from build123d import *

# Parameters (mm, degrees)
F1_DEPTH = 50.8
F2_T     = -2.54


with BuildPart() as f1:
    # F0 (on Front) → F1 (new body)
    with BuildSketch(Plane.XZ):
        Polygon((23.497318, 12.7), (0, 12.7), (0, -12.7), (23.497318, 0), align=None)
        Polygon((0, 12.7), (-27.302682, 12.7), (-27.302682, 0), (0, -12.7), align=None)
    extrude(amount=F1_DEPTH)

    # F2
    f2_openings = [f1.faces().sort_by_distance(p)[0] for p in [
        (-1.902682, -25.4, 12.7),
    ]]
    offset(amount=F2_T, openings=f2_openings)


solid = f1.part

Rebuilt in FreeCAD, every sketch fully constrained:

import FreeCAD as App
import Part
import Sketcher
Q = App.Units.Quantity


def faces_at(feature, points):
    """Names of the faces that lie closest to the given points."""
    faces = feature.Shape.Faces
    near = lambda p: min(range(len(faces)), key=lambda i: faces[i].distToShape(Part.Vertex(*p))[0])
    return sorted({f"Face{near(p) + 1}" for p in points})


def add_polygon(sketch, points):
    """Adds a closed chain of lines whose ends are joined by coincident constraints."""
    first, n = sketch.GeometryCount, len(points)
    for a, b in zip(points, points[1:] + points[:1]):
        sketch.addGeometry(Part.LineSegment(App.Vector(*a, 0), App.Vector(*b, 0)), False)
    for i in range(n):
        sketch.addConstraint(Sketcher.Constraint("Coincident", first + i, 2, first + (i + 1) % n, 1))

doc = App.newDocument("Part")
body = doc.addObject("PartDesign::Body", "Body")

# Sketch on XZ plane
sketch1 = body.newObject("Sketcher::SketchObject", "Sketch")
sketch1.AttachmentSupport = (doc.getObject("XZ_Plane"), [""])
sketch1.MapMode = "FlatFace"
add_polygon(sketch1, [(23, 13), (-27, 13), (-27, 0), (0, -13), (23, 0)])  # lines 0-4
sketch1.addConstraint([
    Sketcher.Constraint("Horizontal", 0),
    Sketcher.Constraint("Vertical", 1),
    Sketcher.Constraint("Vertical", 4),
    Sketcher.Constraint("PointOnObject", 1, 2, -1),
    Sketcher.Constraint("PointOnObject", 2, 2, -2),
    Sketcher.Constraint("PointOnObject", 3, 2, -1),
    Sketcher.Constraint("DistanceX", 0, 2, 0, 1, Q("2 in")),
    Sketcher.Constraint("DistanceY", 1, 2, 1, 1, Q("0.5 in")),
    Sketcher.Constraint("DistanceY", 2, 2, 0, 2, Q("1 in")),
    Sketcher.Constraint("Distance", 2, 30.111899),
])
pad1 = body.newObject("PartDesign::Pad", "Pad")
pad1.Profile = sketch1
pad1.Length = Q("2 in")
doc.recompute()

thickness = body.newObject("PartDesign::Thickness", "Thickness")
thickness.Base = (pad1, faces_at(pad1, [(-1.903, -25.4, 12.7)]))
thickness.Value = Q("0.1 in")
thickness.Reversed = True
thickness.Join = "Arc"

doc.recompute()
